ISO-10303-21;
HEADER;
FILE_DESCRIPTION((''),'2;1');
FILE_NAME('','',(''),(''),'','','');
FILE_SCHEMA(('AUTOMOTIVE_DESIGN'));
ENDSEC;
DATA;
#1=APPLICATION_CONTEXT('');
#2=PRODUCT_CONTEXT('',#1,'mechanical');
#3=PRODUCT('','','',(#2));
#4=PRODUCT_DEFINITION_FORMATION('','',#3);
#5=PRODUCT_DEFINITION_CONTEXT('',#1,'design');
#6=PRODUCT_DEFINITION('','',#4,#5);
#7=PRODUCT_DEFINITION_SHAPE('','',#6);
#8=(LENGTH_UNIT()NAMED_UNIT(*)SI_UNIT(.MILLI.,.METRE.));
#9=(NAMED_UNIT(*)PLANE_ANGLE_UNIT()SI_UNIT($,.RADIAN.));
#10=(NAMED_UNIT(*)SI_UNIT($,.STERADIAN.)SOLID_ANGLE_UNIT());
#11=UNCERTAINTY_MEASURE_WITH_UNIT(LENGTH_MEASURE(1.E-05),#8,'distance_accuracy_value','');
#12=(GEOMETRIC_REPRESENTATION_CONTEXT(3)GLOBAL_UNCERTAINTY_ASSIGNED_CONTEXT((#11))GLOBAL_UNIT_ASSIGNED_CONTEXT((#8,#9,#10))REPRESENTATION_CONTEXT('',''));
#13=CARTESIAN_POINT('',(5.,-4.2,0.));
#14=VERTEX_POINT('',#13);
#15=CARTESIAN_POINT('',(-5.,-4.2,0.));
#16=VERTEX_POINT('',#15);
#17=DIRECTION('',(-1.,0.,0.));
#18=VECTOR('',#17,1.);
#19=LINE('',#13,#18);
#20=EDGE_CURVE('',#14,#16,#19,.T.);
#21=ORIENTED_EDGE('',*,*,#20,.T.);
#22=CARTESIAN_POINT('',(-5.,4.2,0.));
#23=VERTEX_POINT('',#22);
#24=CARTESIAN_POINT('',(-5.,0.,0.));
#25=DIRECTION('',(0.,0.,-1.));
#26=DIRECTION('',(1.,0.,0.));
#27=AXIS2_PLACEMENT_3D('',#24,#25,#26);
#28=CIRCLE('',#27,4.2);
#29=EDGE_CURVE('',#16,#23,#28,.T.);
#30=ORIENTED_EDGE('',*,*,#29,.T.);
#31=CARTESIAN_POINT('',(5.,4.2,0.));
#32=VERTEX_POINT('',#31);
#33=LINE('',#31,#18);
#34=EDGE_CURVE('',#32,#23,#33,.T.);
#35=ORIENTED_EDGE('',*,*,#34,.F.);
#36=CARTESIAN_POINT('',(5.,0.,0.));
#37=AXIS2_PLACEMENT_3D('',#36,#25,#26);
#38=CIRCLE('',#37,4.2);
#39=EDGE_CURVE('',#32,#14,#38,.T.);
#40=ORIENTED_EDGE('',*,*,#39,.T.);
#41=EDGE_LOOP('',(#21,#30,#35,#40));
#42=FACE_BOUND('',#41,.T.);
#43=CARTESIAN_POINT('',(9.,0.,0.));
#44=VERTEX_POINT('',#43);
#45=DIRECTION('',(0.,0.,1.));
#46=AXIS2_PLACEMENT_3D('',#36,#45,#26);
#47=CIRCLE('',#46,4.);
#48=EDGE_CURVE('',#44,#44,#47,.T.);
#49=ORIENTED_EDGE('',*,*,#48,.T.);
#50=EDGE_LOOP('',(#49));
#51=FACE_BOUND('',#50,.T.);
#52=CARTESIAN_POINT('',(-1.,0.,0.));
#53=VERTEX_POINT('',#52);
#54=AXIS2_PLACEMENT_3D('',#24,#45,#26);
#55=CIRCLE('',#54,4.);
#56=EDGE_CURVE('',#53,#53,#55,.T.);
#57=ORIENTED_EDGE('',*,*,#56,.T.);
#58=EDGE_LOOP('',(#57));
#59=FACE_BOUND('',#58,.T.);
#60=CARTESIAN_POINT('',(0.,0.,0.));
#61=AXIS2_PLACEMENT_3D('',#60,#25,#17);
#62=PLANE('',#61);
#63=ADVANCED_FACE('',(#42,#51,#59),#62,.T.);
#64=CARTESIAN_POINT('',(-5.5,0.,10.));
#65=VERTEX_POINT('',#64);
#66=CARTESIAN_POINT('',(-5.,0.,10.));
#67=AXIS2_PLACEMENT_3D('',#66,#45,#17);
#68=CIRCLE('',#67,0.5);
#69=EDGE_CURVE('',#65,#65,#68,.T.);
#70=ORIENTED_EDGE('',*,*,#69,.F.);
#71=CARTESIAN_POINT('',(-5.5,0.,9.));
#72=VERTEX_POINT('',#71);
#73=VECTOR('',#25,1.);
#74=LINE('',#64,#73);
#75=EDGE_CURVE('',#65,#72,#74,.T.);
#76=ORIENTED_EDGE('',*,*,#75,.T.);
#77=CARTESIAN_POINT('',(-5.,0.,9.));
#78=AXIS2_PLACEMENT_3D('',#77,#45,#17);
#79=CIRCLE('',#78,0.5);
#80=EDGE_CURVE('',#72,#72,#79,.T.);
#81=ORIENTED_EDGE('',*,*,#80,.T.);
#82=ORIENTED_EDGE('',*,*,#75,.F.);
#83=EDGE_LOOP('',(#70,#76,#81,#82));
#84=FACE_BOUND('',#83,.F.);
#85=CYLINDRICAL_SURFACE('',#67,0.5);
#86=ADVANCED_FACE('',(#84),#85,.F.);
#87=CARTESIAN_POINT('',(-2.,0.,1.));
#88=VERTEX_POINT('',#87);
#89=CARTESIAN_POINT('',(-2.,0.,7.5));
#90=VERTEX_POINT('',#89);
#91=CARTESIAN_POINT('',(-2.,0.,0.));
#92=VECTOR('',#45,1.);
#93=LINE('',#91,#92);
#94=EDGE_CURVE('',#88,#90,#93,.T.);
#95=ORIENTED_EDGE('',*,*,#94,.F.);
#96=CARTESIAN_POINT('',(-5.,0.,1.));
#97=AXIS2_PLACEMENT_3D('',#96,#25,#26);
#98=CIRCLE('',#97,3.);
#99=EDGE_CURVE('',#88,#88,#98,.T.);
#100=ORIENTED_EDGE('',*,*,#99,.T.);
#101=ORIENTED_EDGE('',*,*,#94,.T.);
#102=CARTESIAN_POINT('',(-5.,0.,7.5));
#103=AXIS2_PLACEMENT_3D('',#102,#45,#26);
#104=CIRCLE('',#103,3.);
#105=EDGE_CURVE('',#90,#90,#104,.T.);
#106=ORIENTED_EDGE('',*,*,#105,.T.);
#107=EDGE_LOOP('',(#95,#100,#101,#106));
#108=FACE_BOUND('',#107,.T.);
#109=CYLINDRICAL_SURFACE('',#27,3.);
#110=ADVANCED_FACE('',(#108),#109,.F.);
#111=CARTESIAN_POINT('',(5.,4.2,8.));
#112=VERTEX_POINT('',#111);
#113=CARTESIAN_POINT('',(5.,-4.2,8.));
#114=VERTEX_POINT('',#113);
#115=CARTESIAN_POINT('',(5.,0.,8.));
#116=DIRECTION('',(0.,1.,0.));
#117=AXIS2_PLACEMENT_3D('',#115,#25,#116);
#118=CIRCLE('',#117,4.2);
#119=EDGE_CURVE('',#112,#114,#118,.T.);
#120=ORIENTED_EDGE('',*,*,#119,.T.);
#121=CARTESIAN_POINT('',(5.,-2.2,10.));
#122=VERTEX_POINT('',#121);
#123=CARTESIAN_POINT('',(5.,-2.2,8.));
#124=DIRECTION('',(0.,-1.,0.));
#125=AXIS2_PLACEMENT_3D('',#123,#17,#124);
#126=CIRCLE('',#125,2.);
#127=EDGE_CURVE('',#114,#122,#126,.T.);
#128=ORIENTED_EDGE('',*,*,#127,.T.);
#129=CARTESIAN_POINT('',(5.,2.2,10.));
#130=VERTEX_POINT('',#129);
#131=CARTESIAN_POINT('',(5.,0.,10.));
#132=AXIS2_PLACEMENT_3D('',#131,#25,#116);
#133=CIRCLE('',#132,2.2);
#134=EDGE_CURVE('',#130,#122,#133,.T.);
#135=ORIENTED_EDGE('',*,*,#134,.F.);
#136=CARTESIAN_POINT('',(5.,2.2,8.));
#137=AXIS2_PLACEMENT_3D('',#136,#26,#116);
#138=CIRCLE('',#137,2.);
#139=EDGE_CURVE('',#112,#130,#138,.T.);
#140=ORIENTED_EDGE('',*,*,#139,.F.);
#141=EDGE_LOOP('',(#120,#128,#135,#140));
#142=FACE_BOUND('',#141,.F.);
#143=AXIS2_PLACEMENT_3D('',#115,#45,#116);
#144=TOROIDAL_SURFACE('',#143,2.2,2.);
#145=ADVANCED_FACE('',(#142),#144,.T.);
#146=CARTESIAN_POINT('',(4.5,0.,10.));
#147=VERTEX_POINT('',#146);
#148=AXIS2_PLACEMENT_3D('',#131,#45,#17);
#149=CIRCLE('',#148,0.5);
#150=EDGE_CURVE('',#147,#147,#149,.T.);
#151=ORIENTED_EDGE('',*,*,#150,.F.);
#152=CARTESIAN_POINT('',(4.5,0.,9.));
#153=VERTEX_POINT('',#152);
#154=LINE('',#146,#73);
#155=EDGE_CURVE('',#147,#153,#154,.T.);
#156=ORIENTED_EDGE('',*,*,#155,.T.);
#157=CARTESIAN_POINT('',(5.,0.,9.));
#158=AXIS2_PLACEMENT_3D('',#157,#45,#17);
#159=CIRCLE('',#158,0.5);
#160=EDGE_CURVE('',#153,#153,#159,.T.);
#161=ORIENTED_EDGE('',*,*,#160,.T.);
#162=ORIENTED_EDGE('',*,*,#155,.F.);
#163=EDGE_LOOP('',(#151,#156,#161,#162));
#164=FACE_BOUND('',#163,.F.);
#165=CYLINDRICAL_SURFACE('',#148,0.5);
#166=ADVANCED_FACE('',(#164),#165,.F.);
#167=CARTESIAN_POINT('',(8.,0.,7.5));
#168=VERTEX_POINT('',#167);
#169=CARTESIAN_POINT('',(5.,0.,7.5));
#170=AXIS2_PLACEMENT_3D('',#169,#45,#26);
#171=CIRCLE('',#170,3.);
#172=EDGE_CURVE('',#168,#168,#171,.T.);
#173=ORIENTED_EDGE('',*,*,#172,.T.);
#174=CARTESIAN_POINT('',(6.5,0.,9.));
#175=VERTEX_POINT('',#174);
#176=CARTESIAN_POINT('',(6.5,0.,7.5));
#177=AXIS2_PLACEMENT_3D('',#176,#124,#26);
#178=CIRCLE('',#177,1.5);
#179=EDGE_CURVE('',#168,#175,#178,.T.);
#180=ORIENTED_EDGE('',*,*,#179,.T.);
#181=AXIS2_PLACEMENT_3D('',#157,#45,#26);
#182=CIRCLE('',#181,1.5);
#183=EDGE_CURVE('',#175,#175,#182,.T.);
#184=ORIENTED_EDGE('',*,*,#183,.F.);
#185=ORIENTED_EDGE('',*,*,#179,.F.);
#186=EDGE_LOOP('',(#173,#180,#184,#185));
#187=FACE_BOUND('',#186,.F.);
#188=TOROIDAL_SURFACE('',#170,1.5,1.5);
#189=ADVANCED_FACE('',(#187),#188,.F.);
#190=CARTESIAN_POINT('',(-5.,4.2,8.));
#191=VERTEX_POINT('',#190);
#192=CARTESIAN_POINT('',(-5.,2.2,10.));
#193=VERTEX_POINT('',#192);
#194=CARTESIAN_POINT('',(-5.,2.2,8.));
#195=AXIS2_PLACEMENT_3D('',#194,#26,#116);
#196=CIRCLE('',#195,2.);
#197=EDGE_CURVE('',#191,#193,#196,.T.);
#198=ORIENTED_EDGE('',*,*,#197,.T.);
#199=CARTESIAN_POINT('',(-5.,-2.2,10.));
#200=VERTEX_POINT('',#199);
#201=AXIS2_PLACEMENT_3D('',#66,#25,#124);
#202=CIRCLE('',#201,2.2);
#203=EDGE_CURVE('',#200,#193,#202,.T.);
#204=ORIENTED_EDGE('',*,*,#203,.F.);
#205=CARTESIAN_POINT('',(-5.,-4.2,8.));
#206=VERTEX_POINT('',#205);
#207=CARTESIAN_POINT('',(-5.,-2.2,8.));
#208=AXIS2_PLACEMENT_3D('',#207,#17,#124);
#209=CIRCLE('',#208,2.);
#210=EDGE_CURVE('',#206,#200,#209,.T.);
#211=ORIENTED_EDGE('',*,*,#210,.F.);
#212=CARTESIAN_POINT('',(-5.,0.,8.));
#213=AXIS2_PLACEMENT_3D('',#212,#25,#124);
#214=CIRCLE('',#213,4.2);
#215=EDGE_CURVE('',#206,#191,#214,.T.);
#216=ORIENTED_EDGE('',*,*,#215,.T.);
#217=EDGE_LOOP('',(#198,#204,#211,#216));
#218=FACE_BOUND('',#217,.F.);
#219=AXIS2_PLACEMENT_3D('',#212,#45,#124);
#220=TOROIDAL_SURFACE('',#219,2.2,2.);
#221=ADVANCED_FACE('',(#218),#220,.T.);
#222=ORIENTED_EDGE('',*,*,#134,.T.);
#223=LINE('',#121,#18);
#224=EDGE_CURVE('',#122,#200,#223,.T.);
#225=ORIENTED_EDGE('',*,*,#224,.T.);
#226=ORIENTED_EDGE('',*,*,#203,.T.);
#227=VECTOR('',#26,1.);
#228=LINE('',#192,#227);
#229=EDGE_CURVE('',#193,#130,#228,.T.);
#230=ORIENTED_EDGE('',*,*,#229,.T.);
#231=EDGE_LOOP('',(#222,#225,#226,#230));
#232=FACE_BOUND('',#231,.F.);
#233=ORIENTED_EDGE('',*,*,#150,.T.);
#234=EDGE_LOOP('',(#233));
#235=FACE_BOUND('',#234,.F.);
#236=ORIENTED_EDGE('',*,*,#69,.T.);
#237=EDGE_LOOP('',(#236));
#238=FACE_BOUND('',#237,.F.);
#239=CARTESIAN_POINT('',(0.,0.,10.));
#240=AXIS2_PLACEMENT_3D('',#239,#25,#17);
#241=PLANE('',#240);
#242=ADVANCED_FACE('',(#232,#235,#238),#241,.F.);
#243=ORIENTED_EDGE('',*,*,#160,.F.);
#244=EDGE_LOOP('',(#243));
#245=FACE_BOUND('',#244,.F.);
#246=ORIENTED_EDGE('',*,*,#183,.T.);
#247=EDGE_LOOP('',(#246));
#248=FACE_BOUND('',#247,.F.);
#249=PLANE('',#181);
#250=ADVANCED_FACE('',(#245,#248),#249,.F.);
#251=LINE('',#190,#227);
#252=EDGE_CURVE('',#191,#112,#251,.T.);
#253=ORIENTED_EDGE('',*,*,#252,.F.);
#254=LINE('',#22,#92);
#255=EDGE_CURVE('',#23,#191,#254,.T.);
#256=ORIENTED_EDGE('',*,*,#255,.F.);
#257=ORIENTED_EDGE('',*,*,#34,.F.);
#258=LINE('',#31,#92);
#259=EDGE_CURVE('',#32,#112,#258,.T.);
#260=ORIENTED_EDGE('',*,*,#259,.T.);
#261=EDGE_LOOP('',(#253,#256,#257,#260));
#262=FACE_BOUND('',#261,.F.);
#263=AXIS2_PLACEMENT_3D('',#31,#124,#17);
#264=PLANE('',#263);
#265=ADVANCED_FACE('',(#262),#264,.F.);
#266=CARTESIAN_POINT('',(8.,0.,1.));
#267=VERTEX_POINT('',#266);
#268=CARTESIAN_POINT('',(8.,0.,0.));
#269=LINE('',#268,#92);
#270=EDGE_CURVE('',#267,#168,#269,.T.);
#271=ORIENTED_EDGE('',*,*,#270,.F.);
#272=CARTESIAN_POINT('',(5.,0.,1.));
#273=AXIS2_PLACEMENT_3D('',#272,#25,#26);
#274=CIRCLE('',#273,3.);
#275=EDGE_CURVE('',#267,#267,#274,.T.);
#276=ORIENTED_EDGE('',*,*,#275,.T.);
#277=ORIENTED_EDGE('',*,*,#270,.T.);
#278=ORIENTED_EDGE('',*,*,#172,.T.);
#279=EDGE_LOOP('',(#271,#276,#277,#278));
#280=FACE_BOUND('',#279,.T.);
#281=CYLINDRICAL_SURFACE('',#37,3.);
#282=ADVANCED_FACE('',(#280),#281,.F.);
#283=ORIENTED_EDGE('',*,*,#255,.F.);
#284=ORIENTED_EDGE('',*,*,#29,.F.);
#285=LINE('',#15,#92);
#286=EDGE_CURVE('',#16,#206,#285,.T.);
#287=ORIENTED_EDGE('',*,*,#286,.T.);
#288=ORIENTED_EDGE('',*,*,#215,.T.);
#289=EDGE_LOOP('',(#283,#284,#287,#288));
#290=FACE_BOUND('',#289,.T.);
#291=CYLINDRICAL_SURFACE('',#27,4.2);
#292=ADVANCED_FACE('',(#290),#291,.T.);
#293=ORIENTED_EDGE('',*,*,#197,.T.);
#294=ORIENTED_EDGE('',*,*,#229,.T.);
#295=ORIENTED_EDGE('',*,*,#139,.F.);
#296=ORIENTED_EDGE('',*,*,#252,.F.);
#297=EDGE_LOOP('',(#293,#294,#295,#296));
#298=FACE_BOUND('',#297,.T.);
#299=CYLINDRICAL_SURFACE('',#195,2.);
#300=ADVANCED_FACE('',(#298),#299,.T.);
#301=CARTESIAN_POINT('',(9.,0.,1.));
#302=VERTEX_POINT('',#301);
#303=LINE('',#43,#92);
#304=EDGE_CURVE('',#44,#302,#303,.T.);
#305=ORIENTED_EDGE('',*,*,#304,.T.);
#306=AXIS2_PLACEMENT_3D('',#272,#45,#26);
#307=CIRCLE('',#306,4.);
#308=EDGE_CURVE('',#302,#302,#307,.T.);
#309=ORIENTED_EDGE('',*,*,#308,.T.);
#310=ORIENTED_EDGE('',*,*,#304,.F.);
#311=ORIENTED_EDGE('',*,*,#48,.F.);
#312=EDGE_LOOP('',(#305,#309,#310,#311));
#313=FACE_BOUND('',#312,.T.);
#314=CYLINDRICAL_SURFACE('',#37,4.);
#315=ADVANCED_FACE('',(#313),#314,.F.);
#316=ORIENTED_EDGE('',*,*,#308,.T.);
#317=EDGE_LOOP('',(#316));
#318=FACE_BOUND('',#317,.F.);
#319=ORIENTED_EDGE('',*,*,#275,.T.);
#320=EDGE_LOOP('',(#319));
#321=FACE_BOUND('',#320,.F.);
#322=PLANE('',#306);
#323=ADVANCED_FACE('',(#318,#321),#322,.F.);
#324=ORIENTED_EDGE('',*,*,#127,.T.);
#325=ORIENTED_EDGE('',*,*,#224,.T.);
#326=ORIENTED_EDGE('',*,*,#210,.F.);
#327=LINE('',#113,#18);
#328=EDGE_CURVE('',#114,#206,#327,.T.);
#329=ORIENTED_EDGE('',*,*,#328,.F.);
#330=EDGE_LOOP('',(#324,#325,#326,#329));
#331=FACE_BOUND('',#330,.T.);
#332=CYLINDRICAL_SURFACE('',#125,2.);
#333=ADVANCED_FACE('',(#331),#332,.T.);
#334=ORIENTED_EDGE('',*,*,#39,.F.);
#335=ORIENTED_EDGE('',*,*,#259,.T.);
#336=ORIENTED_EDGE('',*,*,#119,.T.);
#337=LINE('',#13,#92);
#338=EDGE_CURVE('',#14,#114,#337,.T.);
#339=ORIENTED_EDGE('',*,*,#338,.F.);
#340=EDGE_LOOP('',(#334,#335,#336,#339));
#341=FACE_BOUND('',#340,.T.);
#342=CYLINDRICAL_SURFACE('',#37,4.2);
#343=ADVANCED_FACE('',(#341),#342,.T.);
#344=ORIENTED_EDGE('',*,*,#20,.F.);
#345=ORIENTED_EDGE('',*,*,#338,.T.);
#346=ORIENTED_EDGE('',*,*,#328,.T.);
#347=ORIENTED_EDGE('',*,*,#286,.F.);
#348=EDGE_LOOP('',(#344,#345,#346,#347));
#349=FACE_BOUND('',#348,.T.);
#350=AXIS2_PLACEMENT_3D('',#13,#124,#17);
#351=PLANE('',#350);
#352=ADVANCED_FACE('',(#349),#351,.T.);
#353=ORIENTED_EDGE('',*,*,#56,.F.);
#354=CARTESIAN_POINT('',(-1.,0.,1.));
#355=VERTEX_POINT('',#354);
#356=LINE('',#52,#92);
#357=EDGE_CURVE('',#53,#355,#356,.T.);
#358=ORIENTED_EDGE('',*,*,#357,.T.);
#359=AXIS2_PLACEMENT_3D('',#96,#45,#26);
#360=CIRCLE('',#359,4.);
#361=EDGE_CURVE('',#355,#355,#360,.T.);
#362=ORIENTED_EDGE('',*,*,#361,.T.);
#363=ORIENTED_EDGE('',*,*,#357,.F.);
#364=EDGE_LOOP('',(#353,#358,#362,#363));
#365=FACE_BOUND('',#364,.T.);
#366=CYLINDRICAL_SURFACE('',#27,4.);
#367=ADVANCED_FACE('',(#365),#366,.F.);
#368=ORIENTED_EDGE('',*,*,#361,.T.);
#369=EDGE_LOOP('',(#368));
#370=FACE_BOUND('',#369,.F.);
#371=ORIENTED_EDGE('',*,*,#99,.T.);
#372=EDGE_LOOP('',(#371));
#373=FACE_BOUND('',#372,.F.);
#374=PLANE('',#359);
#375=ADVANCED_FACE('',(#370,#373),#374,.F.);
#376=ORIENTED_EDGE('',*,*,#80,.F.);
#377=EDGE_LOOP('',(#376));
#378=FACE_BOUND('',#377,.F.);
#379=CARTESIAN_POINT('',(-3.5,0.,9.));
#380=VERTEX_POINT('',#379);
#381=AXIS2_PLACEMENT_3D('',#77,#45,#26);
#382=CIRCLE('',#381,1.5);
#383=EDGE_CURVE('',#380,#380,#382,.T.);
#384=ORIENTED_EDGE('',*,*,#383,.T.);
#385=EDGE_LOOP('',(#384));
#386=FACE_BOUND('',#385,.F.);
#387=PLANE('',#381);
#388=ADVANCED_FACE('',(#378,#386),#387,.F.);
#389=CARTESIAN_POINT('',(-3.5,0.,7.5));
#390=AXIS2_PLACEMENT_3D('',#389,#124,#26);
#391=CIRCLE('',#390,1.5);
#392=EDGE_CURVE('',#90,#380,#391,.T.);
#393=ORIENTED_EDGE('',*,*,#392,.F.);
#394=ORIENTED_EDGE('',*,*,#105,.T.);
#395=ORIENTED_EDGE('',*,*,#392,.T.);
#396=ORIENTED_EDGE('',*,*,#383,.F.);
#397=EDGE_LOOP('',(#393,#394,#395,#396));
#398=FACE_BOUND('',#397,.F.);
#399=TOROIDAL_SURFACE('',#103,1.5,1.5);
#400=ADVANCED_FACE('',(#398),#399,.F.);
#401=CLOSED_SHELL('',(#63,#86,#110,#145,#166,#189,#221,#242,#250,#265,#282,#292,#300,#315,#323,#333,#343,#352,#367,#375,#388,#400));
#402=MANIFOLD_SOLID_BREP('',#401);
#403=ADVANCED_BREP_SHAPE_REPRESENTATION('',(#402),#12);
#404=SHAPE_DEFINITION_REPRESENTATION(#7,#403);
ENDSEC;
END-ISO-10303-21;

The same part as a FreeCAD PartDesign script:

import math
import FreeCAD as App
import Part
import Sketcher


def edges_at(feature, points):
    """Names of the edges that pass closest to the given points."""
    edges = feature.Shape.Edges
    near = lambda p: min(range(len(edges)), key=lambda i: edges[i].distToShape(Part.Vertex(*p))[0])
    return sorted({f"Edge{near(p) + 1}" for p in points})

doc = App.newDocument("Part")
params = doc.addObject("Spreadsheet::Sheet", "Params")
for row, (alias, value) in enumerate([
    ("sketch1_radius", "4.2 mm"),
    ("sketch1_width", "10 mm"),
    ("pad1_length", "10 mm"),
    ("sketch2_diameter", "6 mm"),
    ("pocket1_length", "9 mm"),
    ("sketch3_diameter", "8 mm"),
    ("pocket2_length", "1 mm"),
    ("fillet_radius", "1.5 mm"),
    ("fillet2_radius", "2 mm"),
    ("sketch4_diameter", "1 mm"),
], start=1):
    params.set(f"A{row}", alias)
    params.set(f"B{row}", "=" + value)
    params.setAlias(f"B{row}", alias)

body = doc.addObject("PartDesign::Body", "Body")

# Sketch on XY plane
sketch1 = body.newObject("Sketcher::SketchObject", "Sketch")
sketch1.AttachmentSupport = (doc.getObject("XY_Plane"), [""])
sketch1.MapMode = "FlatFace"
sketch1.addGeometry([
    Part.LineSegment(App.Vector(-5, -4.2, 0), App.Vector(5, -4.2, 0)),
    Part.ArcOfCircle(Part.Circle(App.Vector(5, 0, 0), App.Vector(0, 0, 1), 4.2), math.radians(-90), math.radians(90)),
    Part.LineSegment(App.Vector(5, 4.2, 0), App.Vector(-5, 4.2, 0)),
    Part.ArcOfCircle(Part.Circle(App.Vector(-5, 0, 0), App.Vector(0, 0, 1), 4.2), math.radians(90), math.radians(270)),
], False)
sketch1.addConstraint([
    Sketcher.Constraint("Tangent", 0, 2, 1, 1),
    Sketcher.Constraint("Tangent", 1, 2, 2, 1),
    Sketcher.Constraint("Tangent", 2, 2, 3, 1),
    Sketcher.Constraint("Tangent", 3, 2, 0, 1),
    Sketcher.Constraint("Horizontal", 0),
    Sketcher.Constraint("Horizontal", 2),
    Sketcher.Constraint("Symmetric", 1, 3, 3, 3, -1, 1),
    Sketcher.Constraint("Radius", 1, 4.2),
    Sketcher.Constraint("DistanceX", 0, 1, 0, 2, 10.0),
])
sketch1.setExpression("Constraints[7]", "Params.sketch1_radius")
sketch1.setExpression("Constraints[8]", "Params.sketch1_width")
pad1 = body.newObject("PartDesign::Pad", "Pad")
pad1.Profile = sketch1
pad1.setExpression("Length", "Params.pad1_length")

# Sketch on XY plane
sketch2 = body.newObject("Sketcher::SketchObject", "Sketch001")
sketch2.AttachmentSupport = (doc.getObject("XY_Plane"), [""])
sketch2.MapMode = "FlatFace"
sketch2.addGeometry([
    Part.Circle(App.Vector(5, 0, 0), App.Vector(0, 0, 1), 3),
    Part.Circle(App.Vector(-5, 0, 0), App.Vector(0, 0, 1), 3),
], False)
sketch2.addConstraint([
    Sketcher.Constraint("Equal", 0, 1),
    Sketcher.Constraint("Symmetric", 0, 3, 1, 3, -1, 1),
    Sketcher.Constraint("PointOnObject", 0, 3, -1),
    Sketcher.Constraint("Diameter", 0, 6.0),
    Sketcher.Constraint("DistanceX", -1, 1, 0, 3, 5.0),
])
sketch2.setExpression("Constraints[3]", "Params.sketch2_diameter")
pocket1 = body.newObject("PartDesign::Pocket", "Pocket")
pocket1.Profile = sketch2
pocket1.setExpression("Length", "Params.pocket1_length")
pocket1.Reversed = True

# Sketch on XY plane
sketch3 = body.newObject("Sketcher::SketchObject", "Sketch002")
sketch3.AttachmentSupport = (doc.getObject("XY_Plane"), [""])
sketch3.MapMode = "FlatFace"
sketch3.addGeometry([
    Part.Circle(App.Vector(5, 0, 0), App.Vector(0, 0, 1), 4),
    Part.Circle(App.Vector(-5, 0, 0), App.Vector(0, 0, 1), 4),
], False)
sketch3.addConstraint([
    Sketcher.Constraint("Equal", 0, 1),
    Sketcher.Constraint("Symmetric", 0, 3, 1, 3, -1, 1),
    Sketcher.Constraint("PointOnObject", 0, 3, -1),
    Sketcher.Constraint("Diameter", 0, 8.0),
    Sketcher.Constraint("DistanceX", -1, 1, 0, 3, 5.0),
])
sketch3.setExpression("Constraints[3]", "Params.sketch3_diameter")
pocket2 = body.newObject("PartDesign::Pocket", "Pocket001")
pocket2.Profile = sketch3
pocket2.setExpression("Length", "Params.pocket2_length")
pocket2.Reversed = True
doc.recompute()

fillet = body.newObject("PartDesign::Fillet", "Fillet")
fillet.Base = (pocket2, edges_at(pocket2, [(2, 0, 9), (-8, 0, 9)]))
fillet.setExpression("Radius", "Params.fillet_radius")
doc.recompute()

fillet2 = body.newObject("PartDesign::Fillet", "Fillet001")
fillet2.Base = (fillet, edges_at(fillet, [
    (-9.2, 0, 10),
    (9.2, 0, 10),
    (0, -4.2, 10),
    (0, 4.2, 10),
]))
fillet2.setExpression("Radius", "Params.fillet2_radius")

# Sketch on XY plane
sketch4 = body.newObject("Sketcher::SketchObject", "Sketch003")
sketch4.AttachmentSupport = (doc.getObject("XY_Plane"), [""])
sketch4.MapMode = "FlatFace"
sketch4.AttachmentOffset = App.Placement(App.Vector(0, 0, 10), App.Rotation())
sketch4.addGeometry([
    Part.Circle(App.Vector(5, 0, 0), App.Vector(0, 0, 1), 0.5),
    Part.Circle(App.Vector(-5, 0, 0), App.Vector(0, 0, 1), 0.5),
], False)
sketch4.addConstraint([
    Sketcher.Constraint("Equal", 0, 1),
    Sketcher.Constraint("Symmetric", 0, 3, 1, 3, -1, 1),
    Sketcher.Constraint("PointOnObject", 0, 3, -1),
    Sketcher.Constraint("Diameter", 0, 1.0),
    Sketcher.Constraint("DistanceX", -1, 1, 0, 3, 5.0),
])
sketch4.setExpression("Constraints[3]", "Params.sketch4_diameter")
pocket3 = body.newObject("PartDesign::Pocket", "Pocket002")
pocket3.Profile = sketch4
pocket3.Type = "ThroughAll"

doc.recompute()
